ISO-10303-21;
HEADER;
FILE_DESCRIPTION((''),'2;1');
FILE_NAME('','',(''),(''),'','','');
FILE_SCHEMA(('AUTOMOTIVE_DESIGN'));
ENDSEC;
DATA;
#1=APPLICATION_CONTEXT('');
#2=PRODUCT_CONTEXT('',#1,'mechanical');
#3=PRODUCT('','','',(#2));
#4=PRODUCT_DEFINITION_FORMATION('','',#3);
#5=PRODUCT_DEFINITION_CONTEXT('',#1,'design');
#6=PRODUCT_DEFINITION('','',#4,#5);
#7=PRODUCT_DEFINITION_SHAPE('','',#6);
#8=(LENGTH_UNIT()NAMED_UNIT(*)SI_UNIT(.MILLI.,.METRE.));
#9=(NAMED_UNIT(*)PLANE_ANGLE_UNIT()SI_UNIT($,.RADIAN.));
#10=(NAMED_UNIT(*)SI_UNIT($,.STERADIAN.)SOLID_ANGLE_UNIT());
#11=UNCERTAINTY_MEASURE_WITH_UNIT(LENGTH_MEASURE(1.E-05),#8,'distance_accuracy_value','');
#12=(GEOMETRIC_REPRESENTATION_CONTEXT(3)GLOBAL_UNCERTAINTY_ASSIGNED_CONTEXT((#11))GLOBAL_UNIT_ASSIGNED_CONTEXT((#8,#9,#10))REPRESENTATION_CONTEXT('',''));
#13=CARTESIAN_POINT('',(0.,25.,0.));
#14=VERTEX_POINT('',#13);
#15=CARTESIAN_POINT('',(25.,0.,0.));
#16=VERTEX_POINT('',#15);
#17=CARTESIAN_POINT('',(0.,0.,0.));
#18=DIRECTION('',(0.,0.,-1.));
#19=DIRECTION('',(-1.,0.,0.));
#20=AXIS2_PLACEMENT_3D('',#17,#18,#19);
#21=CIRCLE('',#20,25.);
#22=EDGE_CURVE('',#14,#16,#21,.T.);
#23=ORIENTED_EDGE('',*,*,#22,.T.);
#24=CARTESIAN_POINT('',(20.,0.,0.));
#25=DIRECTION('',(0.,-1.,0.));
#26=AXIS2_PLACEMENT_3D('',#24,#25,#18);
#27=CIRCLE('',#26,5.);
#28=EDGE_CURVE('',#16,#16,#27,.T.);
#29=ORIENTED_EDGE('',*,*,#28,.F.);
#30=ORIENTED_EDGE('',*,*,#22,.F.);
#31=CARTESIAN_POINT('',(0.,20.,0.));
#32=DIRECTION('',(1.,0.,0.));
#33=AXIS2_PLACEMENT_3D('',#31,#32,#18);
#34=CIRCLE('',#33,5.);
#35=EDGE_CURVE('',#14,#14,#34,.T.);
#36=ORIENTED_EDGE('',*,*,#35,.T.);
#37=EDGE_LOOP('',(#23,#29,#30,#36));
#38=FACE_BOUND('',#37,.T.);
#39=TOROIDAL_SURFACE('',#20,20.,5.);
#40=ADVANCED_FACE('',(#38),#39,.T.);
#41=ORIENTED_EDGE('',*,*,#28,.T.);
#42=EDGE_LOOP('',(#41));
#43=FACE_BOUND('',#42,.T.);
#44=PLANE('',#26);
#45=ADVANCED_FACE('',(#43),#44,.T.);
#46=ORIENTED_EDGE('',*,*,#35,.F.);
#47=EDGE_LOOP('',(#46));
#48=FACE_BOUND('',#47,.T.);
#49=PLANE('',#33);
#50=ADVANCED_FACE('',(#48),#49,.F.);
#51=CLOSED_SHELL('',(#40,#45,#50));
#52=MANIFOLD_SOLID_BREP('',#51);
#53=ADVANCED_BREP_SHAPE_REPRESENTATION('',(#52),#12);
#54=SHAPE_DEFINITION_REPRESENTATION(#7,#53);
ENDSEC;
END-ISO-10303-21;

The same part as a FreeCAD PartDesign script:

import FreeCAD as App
import Part
import Sketcher

V = App.Vector

doc = App.newDocument("Part")
body = doc.addObject("PartDesign::Body", "Body")

sketch1 = body.newObject("Sketcher::SketchObject", "Sketch")
sketch1.AttachmentSupport = (doc.getObject("XZ_Plane"), [""])
sketch1.MapMode = "FlatFace"
sketch1.addGeometry(Part.Circle(V(20, 0, 0), V(0, 0, 1), 5), False)
sketch1.addConstraint(Sketcher.Constraint("PointOnObject", 0, 3, -1))
sketch1.addConstraint(Sketcher.Constraint("Diameter", 0, 10.0))
sketch1.addConstraint(Sketcher.Constraint("DistanceX", -1, 1, 0, 3, 20.0))
revolution = body.newObject("PartDesign::Revolution", "Revolution")
revolution.Profile = sketch1
revolution.ReferenceAxis = (sketch1, ["V_Axis"])
revolution.Angle = 90

doc.recompute()
